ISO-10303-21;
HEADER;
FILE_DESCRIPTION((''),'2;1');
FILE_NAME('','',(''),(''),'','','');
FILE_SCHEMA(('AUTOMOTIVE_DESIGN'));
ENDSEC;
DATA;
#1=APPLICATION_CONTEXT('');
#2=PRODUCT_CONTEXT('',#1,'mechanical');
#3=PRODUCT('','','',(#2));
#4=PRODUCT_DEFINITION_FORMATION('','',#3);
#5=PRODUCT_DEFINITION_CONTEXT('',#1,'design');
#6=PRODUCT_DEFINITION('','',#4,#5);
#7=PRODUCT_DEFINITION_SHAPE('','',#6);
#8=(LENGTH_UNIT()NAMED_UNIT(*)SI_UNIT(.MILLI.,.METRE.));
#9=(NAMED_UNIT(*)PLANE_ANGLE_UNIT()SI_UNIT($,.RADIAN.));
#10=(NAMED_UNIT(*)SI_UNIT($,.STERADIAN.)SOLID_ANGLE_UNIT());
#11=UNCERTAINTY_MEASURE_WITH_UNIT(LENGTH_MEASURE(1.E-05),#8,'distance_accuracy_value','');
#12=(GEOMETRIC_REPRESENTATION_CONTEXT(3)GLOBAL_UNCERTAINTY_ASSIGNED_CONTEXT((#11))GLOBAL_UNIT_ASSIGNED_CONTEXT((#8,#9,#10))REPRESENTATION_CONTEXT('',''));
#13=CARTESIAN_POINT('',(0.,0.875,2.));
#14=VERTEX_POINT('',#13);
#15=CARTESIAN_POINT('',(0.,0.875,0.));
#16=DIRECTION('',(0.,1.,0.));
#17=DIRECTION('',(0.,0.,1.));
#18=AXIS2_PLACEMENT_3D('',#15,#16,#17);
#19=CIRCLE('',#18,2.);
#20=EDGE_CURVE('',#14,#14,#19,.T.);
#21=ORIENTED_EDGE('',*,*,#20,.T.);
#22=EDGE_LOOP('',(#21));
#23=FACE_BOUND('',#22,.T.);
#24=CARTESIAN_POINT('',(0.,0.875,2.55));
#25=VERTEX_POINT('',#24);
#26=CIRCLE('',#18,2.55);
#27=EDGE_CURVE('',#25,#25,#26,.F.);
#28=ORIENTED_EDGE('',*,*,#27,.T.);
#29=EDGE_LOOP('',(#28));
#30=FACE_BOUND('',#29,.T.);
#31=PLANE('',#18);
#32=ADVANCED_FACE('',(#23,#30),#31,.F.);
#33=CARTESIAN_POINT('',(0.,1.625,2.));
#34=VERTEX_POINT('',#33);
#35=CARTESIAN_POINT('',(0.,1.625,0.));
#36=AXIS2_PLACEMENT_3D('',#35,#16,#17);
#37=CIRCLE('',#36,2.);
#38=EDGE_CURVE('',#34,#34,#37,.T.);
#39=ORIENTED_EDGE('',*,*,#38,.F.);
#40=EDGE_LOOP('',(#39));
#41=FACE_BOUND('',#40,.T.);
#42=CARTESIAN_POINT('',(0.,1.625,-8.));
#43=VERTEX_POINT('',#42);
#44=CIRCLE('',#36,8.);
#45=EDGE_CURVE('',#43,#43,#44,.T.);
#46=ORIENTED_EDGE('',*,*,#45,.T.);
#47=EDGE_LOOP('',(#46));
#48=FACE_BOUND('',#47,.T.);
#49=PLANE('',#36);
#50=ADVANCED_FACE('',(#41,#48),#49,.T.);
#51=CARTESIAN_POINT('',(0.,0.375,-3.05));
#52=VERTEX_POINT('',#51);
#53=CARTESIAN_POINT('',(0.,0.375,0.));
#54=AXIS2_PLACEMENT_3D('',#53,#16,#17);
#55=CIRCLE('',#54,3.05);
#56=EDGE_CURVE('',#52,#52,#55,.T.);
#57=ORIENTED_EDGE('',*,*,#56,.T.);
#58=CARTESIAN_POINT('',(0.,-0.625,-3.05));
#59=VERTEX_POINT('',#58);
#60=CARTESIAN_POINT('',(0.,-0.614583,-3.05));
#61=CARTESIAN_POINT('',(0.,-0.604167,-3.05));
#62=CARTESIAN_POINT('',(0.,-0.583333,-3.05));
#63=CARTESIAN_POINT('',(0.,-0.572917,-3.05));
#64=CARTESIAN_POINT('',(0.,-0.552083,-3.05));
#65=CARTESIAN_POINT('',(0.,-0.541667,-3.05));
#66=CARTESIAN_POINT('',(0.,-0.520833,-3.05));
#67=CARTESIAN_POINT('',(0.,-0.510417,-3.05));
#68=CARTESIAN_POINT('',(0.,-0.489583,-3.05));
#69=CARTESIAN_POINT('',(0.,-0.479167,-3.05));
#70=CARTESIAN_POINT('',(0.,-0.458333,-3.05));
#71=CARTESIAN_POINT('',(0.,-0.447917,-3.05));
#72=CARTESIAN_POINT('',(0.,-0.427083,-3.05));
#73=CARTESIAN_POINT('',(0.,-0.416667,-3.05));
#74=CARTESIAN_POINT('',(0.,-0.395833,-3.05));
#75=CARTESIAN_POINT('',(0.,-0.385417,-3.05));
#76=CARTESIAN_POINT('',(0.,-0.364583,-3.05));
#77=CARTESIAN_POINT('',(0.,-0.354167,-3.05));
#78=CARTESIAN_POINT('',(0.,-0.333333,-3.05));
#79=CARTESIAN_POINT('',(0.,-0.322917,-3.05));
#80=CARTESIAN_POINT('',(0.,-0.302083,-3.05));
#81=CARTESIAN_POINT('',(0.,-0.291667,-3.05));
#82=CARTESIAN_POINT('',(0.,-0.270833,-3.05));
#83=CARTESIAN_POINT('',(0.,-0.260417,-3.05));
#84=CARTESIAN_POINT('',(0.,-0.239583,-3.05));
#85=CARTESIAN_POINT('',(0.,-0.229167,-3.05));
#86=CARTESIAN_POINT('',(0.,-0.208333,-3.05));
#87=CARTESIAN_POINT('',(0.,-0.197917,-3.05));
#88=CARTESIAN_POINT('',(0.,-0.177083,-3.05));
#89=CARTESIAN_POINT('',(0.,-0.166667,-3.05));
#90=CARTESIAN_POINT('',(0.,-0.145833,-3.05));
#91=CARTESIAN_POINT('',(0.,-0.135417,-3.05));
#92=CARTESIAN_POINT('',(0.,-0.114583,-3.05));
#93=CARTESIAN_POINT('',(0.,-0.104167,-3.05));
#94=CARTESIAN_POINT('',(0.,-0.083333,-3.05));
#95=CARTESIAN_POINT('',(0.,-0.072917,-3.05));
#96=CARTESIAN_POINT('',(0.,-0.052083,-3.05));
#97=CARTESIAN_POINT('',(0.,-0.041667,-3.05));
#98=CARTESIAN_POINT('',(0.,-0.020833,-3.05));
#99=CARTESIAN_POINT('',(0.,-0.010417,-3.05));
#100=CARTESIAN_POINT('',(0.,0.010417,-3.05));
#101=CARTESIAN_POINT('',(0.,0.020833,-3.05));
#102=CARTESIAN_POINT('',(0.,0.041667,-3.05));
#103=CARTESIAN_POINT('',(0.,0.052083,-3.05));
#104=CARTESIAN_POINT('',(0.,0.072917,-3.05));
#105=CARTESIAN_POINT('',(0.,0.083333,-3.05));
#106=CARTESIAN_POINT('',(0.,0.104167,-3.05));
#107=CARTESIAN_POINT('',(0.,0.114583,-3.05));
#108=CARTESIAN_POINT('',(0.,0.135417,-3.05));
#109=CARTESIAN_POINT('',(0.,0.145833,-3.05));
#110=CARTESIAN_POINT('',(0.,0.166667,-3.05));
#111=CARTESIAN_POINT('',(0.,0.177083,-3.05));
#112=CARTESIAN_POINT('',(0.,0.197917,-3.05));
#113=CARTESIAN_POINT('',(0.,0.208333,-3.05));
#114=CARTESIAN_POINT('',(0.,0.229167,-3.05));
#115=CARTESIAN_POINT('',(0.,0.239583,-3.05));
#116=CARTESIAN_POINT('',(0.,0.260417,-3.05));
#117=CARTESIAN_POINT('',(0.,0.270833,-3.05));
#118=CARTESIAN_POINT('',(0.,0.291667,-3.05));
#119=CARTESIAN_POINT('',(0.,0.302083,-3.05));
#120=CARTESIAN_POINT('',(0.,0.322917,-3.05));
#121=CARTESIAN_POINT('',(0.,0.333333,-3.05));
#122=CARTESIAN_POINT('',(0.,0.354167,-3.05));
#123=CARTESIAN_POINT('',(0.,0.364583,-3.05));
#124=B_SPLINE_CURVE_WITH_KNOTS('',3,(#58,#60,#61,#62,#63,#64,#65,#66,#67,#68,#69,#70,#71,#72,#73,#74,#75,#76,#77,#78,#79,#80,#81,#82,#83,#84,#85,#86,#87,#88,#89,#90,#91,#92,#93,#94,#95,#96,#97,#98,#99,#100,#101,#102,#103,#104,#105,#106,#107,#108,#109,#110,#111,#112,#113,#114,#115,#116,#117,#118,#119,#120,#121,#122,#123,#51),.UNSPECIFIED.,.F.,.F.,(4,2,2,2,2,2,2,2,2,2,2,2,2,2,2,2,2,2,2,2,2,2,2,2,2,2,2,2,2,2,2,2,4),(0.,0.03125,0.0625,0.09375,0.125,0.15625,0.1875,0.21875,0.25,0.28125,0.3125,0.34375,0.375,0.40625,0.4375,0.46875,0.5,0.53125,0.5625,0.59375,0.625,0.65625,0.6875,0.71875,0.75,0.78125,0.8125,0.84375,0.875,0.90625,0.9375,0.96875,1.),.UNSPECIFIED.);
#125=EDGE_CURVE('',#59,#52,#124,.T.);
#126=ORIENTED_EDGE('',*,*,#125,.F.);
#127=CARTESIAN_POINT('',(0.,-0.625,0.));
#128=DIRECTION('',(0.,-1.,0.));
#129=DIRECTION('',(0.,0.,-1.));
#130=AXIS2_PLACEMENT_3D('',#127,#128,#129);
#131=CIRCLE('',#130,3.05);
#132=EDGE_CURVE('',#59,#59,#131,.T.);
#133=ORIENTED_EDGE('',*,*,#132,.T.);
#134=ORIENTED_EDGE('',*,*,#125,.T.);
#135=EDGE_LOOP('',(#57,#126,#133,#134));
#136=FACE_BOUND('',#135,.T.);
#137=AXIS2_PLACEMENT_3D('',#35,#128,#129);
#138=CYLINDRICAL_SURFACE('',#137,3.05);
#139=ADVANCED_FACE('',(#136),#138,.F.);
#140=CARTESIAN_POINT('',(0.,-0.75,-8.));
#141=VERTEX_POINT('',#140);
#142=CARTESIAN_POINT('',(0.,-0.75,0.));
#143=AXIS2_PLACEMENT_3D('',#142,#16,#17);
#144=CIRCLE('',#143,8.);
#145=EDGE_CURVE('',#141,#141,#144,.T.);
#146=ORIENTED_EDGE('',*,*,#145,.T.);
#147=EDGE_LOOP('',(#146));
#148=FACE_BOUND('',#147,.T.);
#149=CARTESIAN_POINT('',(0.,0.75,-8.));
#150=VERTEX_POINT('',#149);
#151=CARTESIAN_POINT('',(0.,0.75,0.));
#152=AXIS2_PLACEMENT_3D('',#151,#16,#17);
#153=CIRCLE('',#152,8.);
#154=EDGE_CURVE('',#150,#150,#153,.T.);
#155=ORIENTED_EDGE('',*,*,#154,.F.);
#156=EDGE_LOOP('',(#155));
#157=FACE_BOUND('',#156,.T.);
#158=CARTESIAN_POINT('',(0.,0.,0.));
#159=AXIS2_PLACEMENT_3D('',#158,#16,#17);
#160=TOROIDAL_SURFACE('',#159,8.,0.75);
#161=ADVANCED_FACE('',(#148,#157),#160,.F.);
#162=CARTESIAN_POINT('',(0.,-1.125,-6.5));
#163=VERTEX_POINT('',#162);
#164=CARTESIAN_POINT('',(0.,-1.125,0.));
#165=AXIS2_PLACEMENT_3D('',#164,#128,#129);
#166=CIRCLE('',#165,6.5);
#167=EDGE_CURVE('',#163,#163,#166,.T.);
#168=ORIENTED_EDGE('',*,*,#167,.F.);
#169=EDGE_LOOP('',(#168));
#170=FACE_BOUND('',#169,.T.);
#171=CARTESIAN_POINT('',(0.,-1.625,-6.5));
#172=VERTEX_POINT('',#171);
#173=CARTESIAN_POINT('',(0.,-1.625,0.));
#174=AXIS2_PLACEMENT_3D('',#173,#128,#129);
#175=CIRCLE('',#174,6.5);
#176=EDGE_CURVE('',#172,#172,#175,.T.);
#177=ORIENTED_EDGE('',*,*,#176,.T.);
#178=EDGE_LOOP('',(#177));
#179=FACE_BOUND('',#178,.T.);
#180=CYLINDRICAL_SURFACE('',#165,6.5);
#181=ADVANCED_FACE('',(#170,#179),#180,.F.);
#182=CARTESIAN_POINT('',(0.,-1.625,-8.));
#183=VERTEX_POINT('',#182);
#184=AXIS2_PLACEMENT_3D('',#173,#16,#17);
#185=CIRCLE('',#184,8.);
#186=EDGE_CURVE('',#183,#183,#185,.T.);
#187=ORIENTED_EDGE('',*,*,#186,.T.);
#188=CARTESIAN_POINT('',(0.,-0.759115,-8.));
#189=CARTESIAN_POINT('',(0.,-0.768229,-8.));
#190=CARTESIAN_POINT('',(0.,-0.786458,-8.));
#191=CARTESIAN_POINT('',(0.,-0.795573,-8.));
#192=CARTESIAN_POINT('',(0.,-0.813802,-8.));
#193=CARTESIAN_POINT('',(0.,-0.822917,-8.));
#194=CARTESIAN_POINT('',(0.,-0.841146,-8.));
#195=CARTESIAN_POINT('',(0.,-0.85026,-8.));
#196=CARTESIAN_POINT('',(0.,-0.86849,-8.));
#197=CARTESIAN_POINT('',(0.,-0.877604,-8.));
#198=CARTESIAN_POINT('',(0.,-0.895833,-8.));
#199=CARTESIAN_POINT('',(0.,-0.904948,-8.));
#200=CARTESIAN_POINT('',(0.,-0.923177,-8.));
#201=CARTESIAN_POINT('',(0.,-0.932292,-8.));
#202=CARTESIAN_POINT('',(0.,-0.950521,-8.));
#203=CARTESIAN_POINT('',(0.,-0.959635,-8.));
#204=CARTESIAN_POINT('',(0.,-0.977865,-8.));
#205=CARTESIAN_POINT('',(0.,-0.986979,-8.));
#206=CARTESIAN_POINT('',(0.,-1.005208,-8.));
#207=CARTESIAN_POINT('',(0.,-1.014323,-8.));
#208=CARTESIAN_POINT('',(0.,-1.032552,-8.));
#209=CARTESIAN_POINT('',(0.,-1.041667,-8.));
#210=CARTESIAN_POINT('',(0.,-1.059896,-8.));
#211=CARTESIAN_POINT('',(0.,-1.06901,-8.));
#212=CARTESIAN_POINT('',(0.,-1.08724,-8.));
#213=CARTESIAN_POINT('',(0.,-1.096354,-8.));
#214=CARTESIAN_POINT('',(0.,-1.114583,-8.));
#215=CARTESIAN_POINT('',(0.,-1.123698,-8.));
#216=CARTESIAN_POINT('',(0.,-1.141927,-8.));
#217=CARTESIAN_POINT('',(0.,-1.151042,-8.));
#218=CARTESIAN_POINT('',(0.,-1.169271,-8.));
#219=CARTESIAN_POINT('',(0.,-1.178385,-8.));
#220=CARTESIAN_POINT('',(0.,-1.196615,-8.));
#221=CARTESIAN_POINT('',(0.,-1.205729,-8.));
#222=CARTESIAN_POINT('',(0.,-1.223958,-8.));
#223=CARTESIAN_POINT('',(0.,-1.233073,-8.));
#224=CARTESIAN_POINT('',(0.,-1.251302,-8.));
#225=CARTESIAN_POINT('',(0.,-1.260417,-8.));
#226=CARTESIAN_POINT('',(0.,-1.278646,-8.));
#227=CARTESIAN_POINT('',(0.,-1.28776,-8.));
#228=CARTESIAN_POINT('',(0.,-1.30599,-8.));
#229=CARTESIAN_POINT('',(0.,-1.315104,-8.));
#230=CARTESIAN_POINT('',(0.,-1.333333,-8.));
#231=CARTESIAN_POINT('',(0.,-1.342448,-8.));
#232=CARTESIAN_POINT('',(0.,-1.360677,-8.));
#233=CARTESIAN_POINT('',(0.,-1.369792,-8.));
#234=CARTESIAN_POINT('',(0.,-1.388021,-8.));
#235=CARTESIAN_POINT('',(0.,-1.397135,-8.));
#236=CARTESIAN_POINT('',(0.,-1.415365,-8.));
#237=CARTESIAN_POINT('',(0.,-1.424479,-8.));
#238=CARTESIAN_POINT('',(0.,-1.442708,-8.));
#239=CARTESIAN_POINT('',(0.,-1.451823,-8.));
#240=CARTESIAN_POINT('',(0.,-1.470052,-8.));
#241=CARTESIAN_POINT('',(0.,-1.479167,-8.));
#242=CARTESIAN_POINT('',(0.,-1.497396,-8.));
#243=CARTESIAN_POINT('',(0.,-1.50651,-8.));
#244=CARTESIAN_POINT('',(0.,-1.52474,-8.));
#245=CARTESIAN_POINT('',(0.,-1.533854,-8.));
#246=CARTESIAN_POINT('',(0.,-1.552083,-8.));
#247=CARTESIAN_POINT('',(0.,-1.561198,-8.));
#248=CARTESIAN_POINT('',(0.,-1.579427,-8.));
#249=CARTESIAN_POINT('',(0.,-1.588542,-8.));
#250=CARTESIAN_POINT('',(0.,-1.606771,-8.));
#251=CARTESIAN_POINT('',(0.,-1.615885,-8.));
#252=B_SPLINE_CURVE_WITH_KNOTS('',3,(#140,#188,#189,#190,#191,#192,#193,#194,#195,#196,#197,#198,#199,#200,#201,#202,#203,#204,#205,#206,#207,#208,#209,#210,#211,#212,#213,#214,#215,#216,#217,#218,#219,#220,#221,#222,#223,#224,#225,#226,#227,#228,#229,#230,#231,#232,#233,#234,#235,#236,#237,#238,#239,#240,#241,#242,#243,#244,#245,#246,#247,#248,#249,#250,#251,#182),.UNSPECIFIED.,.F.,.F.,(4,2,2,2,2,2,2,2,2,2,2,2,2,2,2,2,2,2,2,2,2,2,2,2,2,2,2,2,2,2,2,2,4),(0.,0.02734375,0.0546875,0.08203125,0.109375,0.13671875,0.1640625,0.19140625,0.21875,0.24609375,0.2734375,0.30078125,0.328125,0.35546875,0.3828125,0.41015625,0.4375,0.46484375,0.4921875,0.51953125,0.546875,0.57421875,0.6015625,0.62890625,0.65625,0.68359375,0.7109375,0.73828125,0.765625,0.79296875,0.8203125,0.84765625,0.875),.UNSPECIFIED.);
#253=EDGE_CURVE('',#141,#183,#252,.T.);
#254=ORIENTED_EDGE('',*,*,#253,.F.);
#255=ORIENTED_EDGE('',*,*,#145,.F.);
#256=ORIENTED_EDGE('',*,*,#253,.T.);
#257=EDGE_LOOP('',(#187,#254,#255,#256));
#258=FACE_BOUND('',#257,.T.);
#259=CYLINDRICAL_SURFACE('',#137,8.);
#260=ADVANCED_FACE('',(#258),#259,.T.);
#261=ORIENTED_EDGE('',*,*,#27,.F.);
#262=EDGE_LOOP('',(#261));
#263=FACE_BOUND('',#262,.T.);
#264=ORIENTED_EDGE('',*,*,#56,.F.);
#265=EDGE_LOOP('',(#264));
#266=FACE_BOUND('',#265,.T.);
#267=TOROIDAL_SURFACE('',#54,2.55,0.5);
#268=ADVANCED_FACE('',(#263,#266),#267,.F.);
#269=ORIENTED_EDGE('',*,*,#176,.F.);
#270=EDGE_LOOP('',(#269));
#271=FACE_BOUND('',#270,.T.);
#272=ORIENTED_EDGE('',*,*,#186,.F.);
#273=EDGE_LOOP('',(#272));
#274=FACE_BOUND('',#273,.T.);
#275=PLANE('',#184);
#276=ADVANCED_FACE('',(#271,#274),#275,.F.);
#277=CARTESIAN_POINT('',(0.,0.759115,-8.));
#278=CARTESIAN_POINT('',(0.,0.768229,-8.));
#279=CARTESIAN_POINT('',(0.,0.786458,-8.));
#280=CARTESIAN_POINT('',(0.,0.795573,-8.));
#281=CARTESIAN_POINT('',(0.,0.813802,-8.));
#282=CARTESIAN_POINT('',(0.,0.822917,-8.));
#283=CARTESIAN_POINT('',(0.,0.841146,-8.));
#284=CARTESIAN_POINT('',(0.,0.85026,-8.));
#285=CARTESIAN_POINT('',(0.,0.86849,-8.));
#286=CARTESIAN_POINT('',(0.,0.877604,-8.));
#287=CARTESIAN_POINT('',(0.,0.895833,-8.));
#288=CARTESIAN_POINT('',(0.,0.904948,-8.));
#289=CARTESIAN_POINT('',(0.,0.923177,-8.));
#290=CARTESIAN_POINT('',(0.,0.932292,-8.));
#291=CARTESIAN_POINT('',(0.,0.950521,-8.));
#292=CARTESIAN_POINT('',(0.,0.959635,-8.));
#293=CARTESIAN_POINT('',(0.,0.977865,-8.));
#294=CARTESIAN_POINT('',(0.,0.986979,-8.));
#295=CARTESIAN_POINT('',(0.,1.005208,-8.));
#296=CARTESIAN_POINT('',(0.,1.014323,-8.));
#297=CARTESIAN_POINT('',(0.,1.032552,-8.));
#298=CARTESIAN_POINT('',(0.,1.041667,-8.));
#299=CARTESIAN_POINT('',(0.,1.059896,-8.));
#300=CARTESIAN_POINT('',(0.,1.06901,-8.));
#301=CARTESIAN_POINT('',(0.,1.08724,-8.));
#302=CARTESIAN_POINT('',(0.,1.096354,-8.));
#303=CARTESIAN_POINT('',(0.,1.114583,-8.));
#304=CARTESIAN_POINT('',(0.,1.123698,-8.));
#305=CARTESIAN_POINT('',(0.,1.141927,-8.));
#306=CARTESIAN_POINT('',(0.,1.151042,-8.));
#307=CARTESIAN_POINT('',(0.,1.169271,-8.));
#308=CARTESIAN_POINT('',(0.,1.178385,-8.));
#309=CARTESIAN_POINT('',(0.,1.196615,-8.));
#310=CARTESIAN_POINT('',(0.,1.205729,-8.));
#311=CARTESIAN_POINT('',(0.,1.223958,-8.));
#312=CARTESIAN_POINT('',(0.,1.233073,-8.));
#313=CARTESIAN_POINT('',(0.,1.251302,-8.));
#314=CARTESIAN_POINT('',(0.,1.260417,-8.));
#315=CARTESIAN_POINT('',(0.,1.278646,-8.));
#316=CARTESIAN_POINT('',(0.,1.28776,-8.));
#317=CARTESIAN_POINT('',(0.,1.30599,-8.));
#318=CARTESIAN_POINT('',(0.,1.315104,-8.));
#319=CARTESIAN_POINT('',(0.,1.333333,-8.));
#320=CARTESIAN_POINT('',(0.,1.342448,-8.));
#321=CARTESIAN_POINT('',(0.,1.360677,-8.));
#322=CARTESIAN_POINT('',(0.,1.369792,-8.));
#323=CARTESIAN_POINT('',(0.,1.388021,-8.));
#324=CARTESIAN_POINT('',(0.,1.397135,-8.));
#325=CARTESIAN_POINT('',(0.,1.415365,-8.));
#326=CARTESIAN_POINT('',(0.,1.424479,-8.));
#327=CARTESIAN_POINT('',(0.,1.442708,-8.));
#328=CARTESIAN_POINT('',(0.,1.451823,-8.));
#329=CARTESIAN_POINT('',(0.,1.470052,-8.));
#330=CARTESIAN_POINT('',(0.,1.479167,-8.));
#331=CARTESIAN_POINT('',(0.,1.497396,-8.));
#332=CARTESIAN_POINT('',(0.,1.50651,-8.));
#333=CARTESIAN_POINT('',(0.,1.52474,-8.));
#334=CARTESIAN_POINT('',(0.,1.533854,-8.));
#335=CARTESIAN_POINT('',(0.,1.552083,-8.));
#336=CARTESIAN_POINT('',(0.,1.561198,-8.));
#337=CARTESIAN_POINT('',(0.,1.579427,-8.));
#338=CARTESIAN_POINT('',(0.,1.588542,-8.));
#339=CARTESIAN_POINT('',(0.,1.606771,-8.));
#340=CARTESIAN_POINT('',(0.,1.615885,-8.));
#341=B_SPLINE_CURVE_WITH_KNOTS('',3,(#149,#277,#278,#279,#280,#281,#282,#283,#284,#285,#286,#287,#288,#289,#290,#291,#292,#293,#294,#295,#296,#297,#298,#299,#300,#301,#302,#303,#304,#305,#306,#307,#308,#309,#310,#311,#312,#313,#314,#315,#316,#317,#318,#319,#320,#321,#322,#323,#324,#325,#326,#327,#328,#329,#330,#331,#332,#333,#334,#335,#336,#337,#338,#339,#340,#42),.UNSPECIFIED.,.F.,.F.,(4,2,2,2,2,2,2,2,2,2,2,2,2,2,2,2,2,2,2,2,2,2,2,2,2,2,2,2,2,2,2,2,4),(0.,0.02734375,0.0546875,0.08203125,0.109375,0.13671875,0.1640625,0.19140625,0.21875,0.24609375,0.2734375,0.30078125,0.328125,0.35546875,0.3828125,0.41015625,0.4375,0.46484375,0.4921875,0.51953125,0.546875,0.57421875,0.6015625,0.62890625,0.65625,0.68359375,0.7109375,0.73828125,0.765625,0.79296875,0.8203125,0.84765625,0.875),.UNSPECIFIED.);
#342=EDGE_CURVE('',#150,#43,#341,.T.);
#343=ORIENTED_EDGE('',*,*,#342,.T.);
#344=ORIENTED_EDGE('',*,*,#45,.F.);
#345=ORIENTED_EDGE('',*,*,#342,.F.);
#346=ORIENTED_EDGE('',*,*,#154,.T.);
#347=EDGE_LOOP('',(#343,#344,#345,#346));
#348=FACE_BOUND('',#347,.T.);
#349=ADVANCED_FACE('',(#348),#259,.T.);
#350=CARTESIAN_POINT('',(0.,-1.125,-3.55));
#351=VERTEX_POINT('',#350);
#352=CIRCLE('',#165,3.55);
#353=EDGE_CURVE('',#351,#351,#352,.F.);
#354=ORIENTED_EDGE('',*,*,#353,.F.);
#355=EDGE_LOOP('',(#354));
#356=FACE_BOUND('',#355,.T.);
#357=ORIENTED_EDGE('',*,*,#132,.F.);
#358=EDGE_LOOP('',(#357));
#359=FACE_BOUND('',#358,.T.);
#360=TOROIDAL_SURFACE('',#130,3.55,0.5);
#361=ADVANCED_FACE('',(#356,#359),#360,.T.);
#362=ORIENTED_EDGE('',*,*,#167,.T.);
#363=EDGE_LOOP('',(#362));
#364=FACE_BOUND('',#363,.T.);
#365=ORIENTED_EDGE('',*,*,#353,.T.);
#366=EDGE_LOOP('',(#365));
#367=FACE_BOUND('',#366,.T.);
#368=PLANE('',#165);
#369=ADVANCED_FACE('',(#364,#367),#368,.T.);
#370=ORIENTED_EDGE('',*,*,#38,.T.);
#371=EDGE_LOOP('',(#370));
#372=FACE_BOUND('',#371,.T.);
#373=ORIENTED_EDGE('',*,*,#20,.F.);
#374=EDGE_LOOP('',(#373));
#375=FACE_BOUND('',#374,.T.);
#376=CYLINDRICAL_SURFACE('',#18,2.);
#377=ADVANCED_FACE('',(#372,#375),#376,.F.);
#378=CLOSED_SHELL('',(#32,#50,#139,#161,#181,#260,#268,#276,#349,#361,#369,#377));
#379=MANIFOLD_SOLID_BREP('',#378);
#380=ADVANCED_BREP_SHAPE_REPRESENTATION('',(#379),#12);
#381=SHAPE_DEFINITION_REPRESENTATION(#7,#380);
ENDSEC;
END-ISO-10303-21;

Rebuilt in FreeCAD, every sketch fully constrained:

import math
import FreeCAD as App
import Part
import Sketcher

V = App.Vector
Q = App.Units.Quantity


def edges_at(feature, points):
    """Names of the edges that pass closest to the given points."""
    edges = feature.Shape.Edges
    near = lambda p: min(range(len(edges)), key=lambda i: edges[i].distToShape(Part.Vertex(*p))[0])
    return sorted({f"Edge{near(p) + 1}" for p in points})

doc = App.newDocument("Part")
body = doc.addObject("PartDesign::Body", "Body")

sketch1 = body.newObject("Sketcher::SketchObject", "Sketch")
sketch1.AttachmentSupport = (doc.getObject("XZ_Plane"), [""])
sketch1.MapMode = "FlatFace"
sketch1.addGeometry([
    Part.Circle(V(0, 0, 0), V(0, 0, 1), 8),
    Part.Circle(V(0, 0, 0), V(0, 0, 1), 3.05),
], False)
sketch1.addConstraint([
    Sketcher.Constraint("Coincident", 0, 3, -1, 1),
    Sketcher.Constraint("Coincident", 1, 3, -1, 1),
    Sketcher.Constraint("Diameter", 0, Q("16 mm")),
    Sketcher.Constraint("Diameter", 1, Q("6.1 mm")),
])
pad1 = body.newObject("PartDesign::Pad", "Pad")
pad1.Profile = sketch1
pad1.Length = 3.25
pad1.Midplane = True

sketch2 = body.newObject("Sketcher::SketchObject", "Sketch001")
sketch2.AttachmentSupport = (doc.getObject("YZ_Plane"), [""])
sketch2.MapMode = "FlatFace"
sketch2.addGeometry([
    Part.LineSegment(V(0.75, 8, 0), V(-0.75, 8, 0)),
    Part.ArcOfCircle(Part.Circle(V(0, 8, 0), V(0, 0, 1), 0.75), math.radians(180), math.radians(360)),
], False)
sketch2.addConstraint([
    Sketcher.Constraint("Coincident", 0, 1, 1, 2),
    Sketcher.Constraint("Coincident", 1, 1, 0, 2),
    Sketcher.Constraint("Horizontal", 0),
    Sketcher.Constraint("PointOnObject", 1, 3, -2),
    Sketcher.Constraint("Horizontal", 1, 3, 0, 1),
    Sketcher.Constraint("Radius", 1, Q("0.75 mm")),
    Sketcher.Constraint("DistanceY", -1, 1, 1, 3, Q("8 mm")),
])
groove = body.newObject("PartDesign::Groove", "Groove")
groove.Profile = sketch2
groove.ReferenceAxis = (sketch2, ["H_Axis"])
groove.Angle = 360

sketch3 = body.newObject("Sketcher::SketchObject", "Sketch002")
sketch3.AttachmentSupport = (doc.getObject("XZ_Plane"), [""])
sketch3.MapMode = "FlatFace"
sketch3.AttachmentOffset = App.Placement(V(0, 0, -1.625), App.Rotation())
sketch3.addGeometry([
    Part.Circle(V(0, 0, 0), V(0, 0, 1), 3.5),
    Part.Circle(V(0, 0, 0), V(0, 0, 1), 2),
], False)
sketch3.addConstraint([
    Sketcher.Constraint("Coincident", 0, 3, -1, 1),
    Sketcher.Constraint("Coincident", 1, 3, -1, 1),
    Sketcher.Constraint("Diameter", 0, Q("7 mm")),
    Sketcher.Constraint("Diameter", 1, Q("4 mm")),
])
pad2 = body.newObject("PartDesign::Pad", "Pad001")
pad2.Profile = sketch3
pad2.Length = 0.75

sketch4 = body.newObject("Sketcher::SketchObject", "Sketch003")
sketch4.AttachmentSupport = (doc.getObject("XZ_Plane"), [""])
sketch4.MapMode = "FlatFace"
sketch4.AttachmentOffset = App.Placement(V(0, 0, 1.625), App.Rotation())
sketch4.addGeometry([
    Part.Circle(V(0, 0, 0), V(0, 0, 1), 6.5),
    Part.Circle(V(0, 0, 0), V(0, 0, 1), 3),
], False)
sketch4.addConstraint([
    Sketcher.Constraint("Coincident", 0, 3, -1, 1),
    Sketcher.Constraint("Coincident", 1, 3, -1, 1),
    Sketcher.Constraint("Diameter", 0, Q("13 mm")),
    Sketcher.Constraint("Diameter", 1, Q("6 mm")),
])
pocket1 = body.newObject("PartDesign::Pocket", "Pocket")
pocket1.Profile = sketch4
pocket1.Length = 0.5
doc.recompute()

fillet = body.newObject("PartDesign::Fillet", "Fillet")
fillet.Base = (pocket1, edges_at(pocket1, [(0, 0.875, 3.05), (0, -1.125, 3.05)]))
fillet.Radius = 0.5

doc.recompute()
